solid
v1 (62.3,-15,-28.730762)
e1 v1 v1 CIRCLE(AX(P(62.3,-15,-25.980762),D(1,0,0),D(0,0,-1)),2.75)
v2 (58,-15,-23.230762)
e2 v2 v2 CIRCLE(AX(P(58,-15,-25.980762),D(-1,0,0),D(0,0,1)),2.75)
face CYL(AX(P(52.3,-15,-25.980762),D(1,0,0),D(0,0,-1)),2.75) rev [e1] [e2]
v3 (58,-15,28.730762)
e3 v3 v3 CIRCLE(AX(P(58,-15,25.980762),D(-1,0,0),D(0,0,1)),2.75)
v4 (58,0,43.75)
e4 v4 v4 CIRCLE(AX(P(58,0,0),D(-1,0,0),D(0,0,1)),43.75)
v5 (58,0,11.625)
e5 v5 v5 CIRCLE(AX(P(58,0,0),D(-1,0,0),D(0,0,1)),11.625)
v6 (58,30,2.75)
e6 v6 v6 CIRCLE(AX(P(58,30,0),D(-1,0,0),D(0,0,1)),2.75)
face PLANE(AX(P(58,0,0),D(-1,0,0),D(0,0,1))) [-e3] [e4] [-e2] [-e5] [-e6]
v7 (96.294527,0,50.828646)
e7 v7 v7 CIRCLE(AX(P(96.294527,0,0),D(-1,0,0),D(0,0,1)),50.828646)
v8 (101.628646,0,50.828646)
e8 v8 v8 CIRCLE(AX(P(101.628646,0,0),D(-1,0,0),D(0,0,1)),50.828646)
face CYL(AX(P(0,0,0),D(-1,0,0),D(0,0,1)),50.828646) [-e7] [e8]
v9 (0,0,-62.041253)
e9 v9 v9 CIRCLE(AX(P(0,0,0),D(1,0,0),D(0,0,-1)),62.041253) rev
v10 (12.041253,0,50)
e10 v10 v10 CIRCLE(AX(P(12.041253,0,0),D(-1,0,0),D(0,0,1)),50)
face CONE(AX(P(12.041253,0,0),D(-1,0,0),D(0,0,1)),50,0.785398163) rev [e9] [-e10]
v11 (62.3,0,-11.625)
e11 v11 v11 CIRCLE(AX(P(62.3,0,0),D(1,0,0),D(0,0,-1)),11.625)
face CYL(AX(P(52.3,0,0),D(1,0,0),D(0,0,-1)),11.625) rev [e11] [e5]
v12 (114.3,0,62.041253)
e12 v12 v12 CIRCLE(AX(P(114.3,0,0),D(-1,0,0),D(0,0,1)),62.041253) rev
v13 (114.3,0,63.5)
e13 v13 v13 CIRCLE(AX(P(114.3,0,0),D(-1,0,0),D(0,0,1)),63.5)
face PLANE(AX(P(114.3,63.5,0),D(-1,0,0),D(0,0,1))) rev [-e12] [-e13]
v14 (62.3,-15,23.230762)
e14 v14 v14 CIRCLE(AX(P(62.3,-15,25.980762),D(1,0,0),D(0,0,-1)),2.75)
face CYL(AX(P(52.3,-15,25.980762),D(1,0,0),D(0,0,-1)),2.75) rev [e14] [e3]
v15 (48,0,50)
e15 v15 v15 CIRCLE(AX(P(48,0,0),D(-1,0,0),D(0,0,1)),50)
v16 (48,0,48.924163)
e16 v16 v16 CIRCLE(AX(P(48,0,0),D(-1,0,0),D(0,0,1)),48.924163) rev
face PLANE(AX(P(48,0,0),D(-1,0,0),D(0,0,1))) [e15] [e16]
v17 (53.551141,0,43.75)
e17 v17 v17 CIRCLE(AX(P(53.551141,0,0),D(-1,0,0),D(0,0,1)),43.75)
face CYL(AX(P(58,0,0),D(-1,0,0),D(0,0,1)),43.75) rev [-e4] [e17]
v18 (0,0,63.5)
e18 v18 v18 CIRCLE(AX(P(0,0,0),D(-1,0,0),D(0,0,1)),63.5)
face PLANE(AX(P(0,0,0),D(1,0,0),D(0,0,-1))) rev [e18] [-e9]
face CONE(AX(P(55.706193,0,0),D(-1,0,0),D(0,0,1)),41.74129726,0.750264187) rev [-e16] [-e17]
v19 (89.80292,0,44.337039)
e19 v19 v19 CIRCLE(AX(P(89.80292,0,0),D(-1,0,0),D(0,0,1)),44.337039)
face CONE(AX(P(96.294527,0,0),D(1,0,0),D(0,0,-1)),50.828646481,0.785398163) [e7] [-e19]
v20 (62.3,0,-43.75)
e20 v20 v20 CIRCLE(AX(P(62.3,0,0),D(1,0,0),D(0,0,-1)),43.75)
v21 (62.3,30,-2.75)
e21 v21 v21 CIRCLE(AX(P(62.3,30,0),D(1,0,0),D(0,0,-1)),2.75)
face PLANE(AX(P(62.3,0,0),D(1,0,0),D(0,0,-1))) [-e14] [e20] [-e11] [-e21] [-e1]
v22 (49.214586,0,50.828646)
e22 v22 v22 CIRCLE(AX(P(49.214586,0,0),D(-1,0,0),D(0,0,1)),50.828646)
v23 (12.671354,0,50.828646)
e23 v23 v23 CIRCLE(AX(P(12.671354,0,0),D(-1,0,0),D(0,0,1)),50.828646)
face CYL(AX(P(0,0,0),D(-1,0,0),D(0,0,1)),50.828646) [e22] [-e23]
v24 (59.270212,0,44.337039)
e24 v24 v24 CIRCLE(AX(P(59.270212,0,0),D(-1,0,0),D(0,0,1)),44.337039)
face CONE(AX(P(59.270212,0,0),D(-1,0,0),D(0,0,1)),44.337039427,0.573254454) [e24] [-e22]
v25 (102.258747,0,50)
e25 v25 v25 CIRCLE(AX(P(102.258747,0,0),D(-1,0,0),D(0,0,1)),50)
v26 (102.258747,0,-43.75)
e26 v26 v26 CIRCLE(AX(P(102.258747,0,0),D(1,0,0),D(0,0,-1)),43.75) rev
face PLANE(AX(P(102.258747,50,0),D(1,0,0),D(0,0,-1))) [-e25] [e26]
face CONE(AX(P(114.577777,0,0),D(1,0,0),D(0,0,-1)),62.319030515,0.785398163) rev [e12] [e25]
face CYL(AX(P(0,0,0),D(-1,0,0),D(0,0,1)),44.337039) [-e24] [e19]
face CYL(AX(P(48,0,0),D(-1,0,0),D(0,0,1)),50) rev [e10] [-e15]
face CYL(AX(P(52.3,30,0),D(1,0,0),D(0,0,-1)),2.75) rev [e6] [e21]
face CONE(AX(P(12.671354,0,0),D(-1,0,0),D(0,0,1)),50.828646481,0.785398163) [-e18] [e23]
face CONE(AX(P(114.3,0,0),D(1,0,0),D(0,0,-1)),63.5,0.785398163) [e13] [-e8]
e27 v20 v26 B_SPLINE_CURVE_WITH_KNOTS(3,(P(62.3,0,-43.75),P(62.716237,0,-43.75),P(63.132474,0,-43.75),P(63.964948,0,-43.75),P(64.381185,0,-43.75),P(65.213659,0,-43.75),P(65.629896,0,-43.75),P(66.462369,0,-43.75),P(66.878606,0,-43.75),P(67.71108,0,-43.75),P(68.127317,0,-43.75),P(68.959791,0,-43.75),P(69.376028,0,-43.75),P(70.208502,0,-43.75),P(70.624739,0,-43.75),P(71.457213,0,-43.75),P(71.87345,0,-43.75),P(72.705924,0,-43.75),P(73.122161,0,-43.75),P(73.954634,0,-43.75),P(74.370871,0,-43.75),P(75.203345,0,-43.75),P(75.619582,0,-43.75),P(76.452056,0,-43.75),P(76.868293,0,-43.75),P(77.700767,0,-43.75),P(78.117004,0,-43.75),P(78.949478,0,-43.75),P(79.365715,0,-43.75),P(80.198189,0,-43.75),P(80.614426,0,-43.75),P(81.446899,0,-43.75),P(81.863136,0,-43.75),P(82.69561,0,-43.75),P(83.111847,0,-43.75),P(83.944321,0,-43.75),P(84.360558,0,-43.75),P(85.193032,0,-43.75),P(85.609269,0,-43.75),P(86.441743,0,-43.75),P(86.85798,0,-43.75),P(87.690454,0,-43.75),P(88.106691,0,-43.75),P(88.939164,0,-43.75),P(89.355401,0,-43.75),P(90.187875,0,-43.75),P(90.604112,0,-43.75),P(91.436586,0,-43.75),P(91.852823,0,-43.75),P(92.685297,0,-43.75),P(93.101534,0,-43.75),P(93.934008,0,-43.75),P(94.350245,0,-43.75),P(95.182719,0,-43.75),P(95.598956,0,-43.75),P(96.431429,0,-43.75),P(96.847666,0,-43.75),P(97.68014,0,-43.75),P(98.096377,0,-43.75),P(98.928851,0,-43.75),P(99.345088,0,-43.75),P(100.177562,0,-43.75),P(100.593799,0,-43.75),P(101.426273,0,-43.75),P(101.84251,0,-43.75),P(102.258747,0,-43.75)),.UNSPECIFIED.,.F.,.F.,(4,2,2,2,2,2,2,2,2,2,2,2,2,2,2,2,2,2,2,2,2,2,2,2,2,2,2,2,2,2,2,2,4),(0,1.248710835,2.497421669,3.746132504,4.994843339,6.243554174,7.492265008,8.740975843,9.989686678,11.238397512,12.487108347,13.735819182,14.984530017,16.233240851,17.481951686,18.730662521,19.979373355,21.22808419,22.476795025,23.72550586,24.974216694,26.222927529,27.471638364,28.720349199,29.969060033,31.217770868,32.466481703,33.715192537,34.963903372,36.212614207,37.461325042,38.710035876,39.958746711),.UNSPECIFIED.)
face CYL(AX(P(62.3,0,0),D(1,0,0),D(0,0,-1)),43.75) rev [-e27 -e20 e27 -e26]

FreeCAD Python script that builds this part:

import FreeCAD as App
import Part
import Sketcher
from FreeCAD import Vector

doc = App.newDocument("Part")
body = doc.addObject("PartDesign::Body", "Body")

# Sketch on XY plane
sketch1 = body.newObject("Sketcher::SketchObject", "Sketch")
sketch1.AttachmentSupport = (doc.getObject("XY_Plane"), [""])
sketch1.MapMode = "FlatFace"
sketch1.addGeometry(Part.LineSegment(Vector(0, 64, 0), Vector(0, 0, 0)), False)
sketch1.addGeometry(Part.LineSegment(Vector(0, 0, 0), Vector(114, 0, 0)), False)
sketch1.addGeometry(Part.LineSegment(Vector(114, 0, 0), Vector(114, 64, 0)), False)
sketch1.addGeometry(Part.LineSegment(Vector(114, 64, 0), Vector(102, 51, 0)), False)
sketch1.addGeometry(Part.LineSegment(Vector(102, 51, 0), Vector(96, 51, 0)), False)
sketch1.addGeometry(Part.LineSegment(Vector(96, 51, 0), Vector(90, 44, 0)), False)
sketch1.addGeometry(Part.LineSegment(Vector(90, 44, 0), Vector(59, 44, 0)), False)
sketch1.addGeometry(Part.LineSegment(Vector(59, 44, 0), Vector(49, 51, 0)), False)
sketch1.addGeometry(Part.LineSegment(Vector(49, 51, 0), Vector(13, 51, 0)), False)
sketch1.addGeometry(Part.LineSegment(Vector(13, 51, 0), Vector(0, 64, 0)), False)
sketch1.addConstraint(Sketcher.Constraint("Coincident", 0, 2, 1, 1))
sketch1.addConstraint(Sketcher.Constraint("Coincident", 1, 2, 2, 1))
sketch1.addConstraint(Sketcher.Constraint("Coincident", 2, 2, 3, 1))
sketch1.addConstraint(Sketcher.Constraint("Coincident", 3, 2, 4, 1))
sketch1.addConstraint(Sketcher.Constraint("Coincident", 4, 2, 5, 1))
sketch1.addConstraint(Sketcher.Constraint("Coincident", 5, 2, 6, 1))
sketch1.addConstraint(Sketcher.Constraint("Coincident", 6, 2, 7, 1))
sketch1.addConstraint(Sketcher.Constraint("Coincident", 7, 2, 8, 1))
sketch1.addConstraint(Sketcher.Constraint("Coincident", 8, 2, 9, 1))
sketch1.addConstraint(Sketcher.Constraint("Coincident", 9, 2, 0, 1))
sketch1.addConstraint(Sketcher.Constraint("Vertical", 0))
sketch1.addConstraint(Sketcher.Constraint("Horizontal", 1))
sketch1.addConstraint(Sketcher.Constraint("Vertical", 2))
sketch1.addConstraint(Sketcher.Constraint("Horizontal", 4))
sketch1.addConstraint(Sketcher.Constraint("Horizontal", 6))
sketch1.addConstraint(Sketcher.Constraint("Horizontal", 8))
sketch1.addConstraint(Sketcher.Constraint("Coincident", 0, 2, -1, 1))
sketch1.addConstraint(Sketcher.Constraint("Parallel", 3, 5))
sketch1.addConstraint(Sketcher.Constraint("Perpendicular", 5, 9))
sketch1.addConstraint(Sketcher.Constraint("Horizontal", 4, 2, 7, 2))
sketch1.addConstraint(Sketcher.Constraint("Horizontal", 2, 2, 9, 2))
sketch1.addConstraint(Sketcher.Constraint("Equal", 3, 9))
sketch1.addConstraint(Sketcher.Constraint("DistanceX", 1, 1, 1, 2, 114.3))
sketch1.addConstraint(Sketcher.Constraint("DistanceY", 0, 2, 0, 1, 63.5))
sketch1.addConstraint(Sketcher.Constraint("Distance", 3, 17.92))
sketch1.addConstraint(Sketcher.Constraint("DistanceX", 4, 2, 4, 1, 5.334119))
sketch1.addConstraint(Sketcher.Constraint("DistanceX", 6, 2, 6, 1, 30.532709))
sketch1.addConstraint(Sketcher.Constraint("Distance", 5, 9.180519))
sketch1.addConstraint(Sketcher.Constraint("DistanceX", 8, 2, 8, 1, 36.543232))
revolution = body.newObject("PartDesign::Revolution", "Revolution")
revolution.Profile = sketch1
revolution.ReferenceAxis = (sketch1, ["H_Axis"])
revolution.Angle = 360

# Sketch on YZ plane
sketch2 = body.newObject("Sketcher::SketchObject", "Sketch001")
sketch2.AttachmentSupport = (doc.getObject("YZ_Plane"), [""])
sketch2.MapMode = "FlatFace"
sketch2.addGeometry(Part.Circle(Vector(0, 0, 0), Vector(0, 0, 1), 50), False)
sketch2.addConstraint(Sketcher.Constraint("Coincident", 0, 3, -1, 1))
sketch2.addConstraint(Sketcher.Constraint("Diameter", 0, 100.0))
pocket1 = body.newObject("PartDesign::Pocket", "Pocket")
pocket1.Profile = sketch2
pocket1.Length = 48
pocket1.Reversed = True

# Sketch on YZ plane
sketch3 = body.newObject("Sketcher::SketchObject", "Sketch002")
sketch3.AttachmentSupport = (doc.getObject("YZ_Plane"), [""])
sketch3.MapMode = "FlatFace"
sketch3.AttachmentOffset = App.Placement(Vector(0, 0, 114.3), App.Rotation())
sketch3.addGeometry(Part.Circle(Vector(0, 0, 0), Vector(0, 0, 1), 44), False)
sketch3.addConstraint(Sketcher.Constraint("Coincident", 0, 3, -1, 1))
sketch3.addConstraint(Sketcher.Constraint("Diameter", 0, 87.5))
pocket2 = body.newObject("PartDesign::Pocket", "Pocket001")
pocket2.Profile = sketch3
pocket2.Length = 52

# Sketch on XY plane
sketch4 = body.newObject("Sketcher::SketchObject", "Sketch003")
sketch4.AttachmentSupport = (doc.getObject("XY_Plane"), [""])
sketch4.MapMode = "FlatFace"
sketch4.addGeometry(Part.LineSegment(Vector(12, 50, 0), Vector(0, 62, 0)), False)
sketch4.addGeometry(Part.LineSegment(Vector(0, 62, 0), Vector(0, 50, 0)), False)
sketch4.addGeometry(Part.LineSegment(Vector(0, 50, 0), Vector(12, 50, 0)), False)
sketch4.addGeometry(Part.LineSegment(Vector(115, 42, 0), Vector(115, 62, 0)), False)
sketch4.addGeometry(Part.LineSegment(Vector(115, 62, 0), Vector(102, 50, 0)), False)
sketch4.addGeometry(Part.LineSegment(Vector(102, 50, 0), Vector(102, 42, 0)), False)
sketch4.addGeometry(Part.LineSegment(Vector(102, 42, 0), Vector(115, 42, 0)), False)
sketch4.addConstraint(Sketcher.Constraint("Coincident", 0, 2, 1, 1))
sketch4.addConstraint(Sketcher.Constraint("Coincident", 1, 2, 2, 1))
sketch4.addConstraint(Sketcher.Constraint("Coincident", 2, 2, 0, 1))
sketch4.addConstraint(Sketcher.Constraint("Coincident", 3, 2, 4, 1))
sketch4.addConstraint(Sketcher.Constraint("Coincident", 4, 2, 5, 1))
sketch4.addConstraint(Sketcher.Constraint("Coincident", 5, 2, 6, 1))
sketch4.addConstraint(Sketcher.Constraint("Coincident", 6, 2, 3, 1))
sketch4.addConstraint(Sketcher.Constraint("Vertical", 1))
sketch4.addConstraint(Sketcher.Constraint("Horizontal", 2))
sketch4.addConstraint(Sketcher.Constraint("Vertical", 3))
sketch4.addConstraint(Sketcher.Constraint("Vertical", 5))
sketch4.addConstraint(Sketcher.Constraint("Horizontal", 6))
sketch4.addConstraint(Sketcher.Constraint("Perpendicular", 0, 4))
sketch4.addConstraint(Sketcher.Constraint("Horizontal", 0, 2, 3, 2))
sketch4.addConstraint(Sketcher.Constraint("Horizontal", 2, 2, 4, 2))
sketch4.addConstraint(Sketcher.Constraint("Equal", 2, 6))
sketch4.addConstraint(Sketcher.Constraint("DistanceY", -1, 1, 1, 2, 50.0))
sketch4.addConstraint(Sketcher.Constraint("DistanceX", 2, 1, 2, 2, 12.319031))
sketch4.addConstraint(Sketcher.Constraint("DistanceY", 3, 1, 3, 2, 20.144864))
sketch4.addConstraint(Sketcher.Constraint("DistanceX", 0, 2, -1, 1, 0.277777))
sketch4.addConstraint(Sketcher.Constraint("DistanceX", -1, 1, 3, 2, 114.577777))
groove = body.newObject("PartDesign::Groove", "Groove")
groove.Profile = sketch4
groove.ReferenceAxis = (sketch4, ["H_Axis"])
groove.Angle = 360

# Sketch on XY plane
sketch5 = body.newObject("Sketcher::SketchObject", "Sketch004")
sketch5.AttachmentSupport = (doc.getObject("XY_Plane"), [""])
sketch5.MapMode = "FlatFace"
sketch5.addGeometry(Part.LineSegment(Vector(47, 42, 0), Vector(56, 42, 0)), False)
sketch5.addGeometry(Part.LineSegment(Vector(56, 42, 0), Vector(47, 50, 0)), False)
sketch5.addGeometry(Part.LineSegment(Vector(47, 50, 0), Vector(47, 42, 0)), False)
sketch5.addConstraint(Sketcher.Constraint("Coincident", 0, 2, 1, 1))
sketch5.addConstraint(Sketcher.Constraint("Coincident", 1, 2, 2, 1))
sketch5.addConstraint(Sketcher.Constraint("Coincident", 2, 2, 0, 1))
sketch5.addConstraint(Sketcher.Constraint("Horizontal", 0))
sketch5.addConstraint(Sketcher.Constraint("Vertical", 2))
sketch5.addConstraint(Sketcher.Constraint("DistanceX", 0, 1, 0, 2, 8.581249))
sketch5.addConstraint(Sketcher.Constraint("Distance", 1, 11.73089))
sketch5.addConstraint(Sketcher.Constraint("DistanceX", -1, 1, 0, 2, 55.706193))
sketch5.addConstraint(Sketcher.Constraint("DistanceY", -1, 1, 0, 2, 41.741297))
groove2 = body.newObject("PartDesign::Groove", "Groove001")
groove2.Profile = sketch5
groove2.ReferenceAxis = (sketch5, ["H_Axis"])
groove2.Angle = 360

# Sketch on YZ plane
sketch6 = body.newObject("Sketcher::SketchObject", "Sketch005")
sketch6.AttachmentSupport = (doc.getObject("YZ_Plane"), [""])
sketch6.MapMode = "FlatFace"
sketch6.AttachmentOffset = App.Placement(Vector(0, 0, 58), App.Rotation())
sketch6.addGeometry(Part.Circle(Vector(0, 0, 0), Vector(0, 0, 1), 44), False)
sketch6.addConstraint(Sketcher.Constraint("Coincident", 0, 3, -1, 1))
sketch6.addConstraint(Sketcher.Constraint("Diameter", 0, 87.5))
pocket3 = body.newObject("PartDesign::Pocket", "Pocket002")
pocket3.Profile = sketch6
pocket3.Length = 10

# Sketch on YZ plane
sketch7 = body.newObject("Sketcher::SketchObject", "Sketch006")
sketch7.AttachmentSupport = (doc.getObject("YZ_Plane"), [""])
sketch7.MapMode = "FlatFace"
sketch7.AttachmentOffset = App.Placement(Vector(0, 0, 62.3), App.Rotation())
sketch7.addGeometry(Part.Circle(Vector(0, 0, 0), Vector(0, 0, 1), 11.6), False)
sketch7.addGeometry(Part.Circle(Vector(30, 0, 0), Vector(0, 0, 1), 2.8), False)
sketch7.addGeometry(Part.Circle(Vector(-15, -26, 0), Vector(0, 0, 1), 2.8), False)
sketch7.addGeometry(Part.Circle(Vector(-15, 26, 0), Vector(0, 0, 1), 2.8), False)
sketch7.addConstraint(Sketcher.Constraint("Coincident", 0, 3, -1, 1))
sketch7.addConstraint(Sketcher.Constraint("Equal", 1, 2))
sketch7.addConstraint(Sketcher.Constraint("Equal", 2, 3))
sketch7.addConstraint(Sketcher.Constraint("Symmetric", 2, 3, 3, 3, -1))
sketch7.addConstraint(Sketcher.Constraint("PointOnObject", 1, 3, -1))
sketch7.addConstraint(Sketcher.Constraint("Diameter", 1, 5.5))
sketch7.addConstraint(Sketcher.Constraint("Diameter", 0, 23.25))
sketch7.addConstraint(Sketcher.Constraint("DistanceX", -1, 1, 1, 3, 30.0))
sketch7.addConstraint(Sketcher.Constraint("DistanceX", 2, 3, -1, 1, 15.0))
sketch7.addConstraint(Sketcher.Constraint("DistanceY", 2, 3, -1, 1, 25.980762))
pocket4 = body.newObject("PartDesign::Pocket", "Pocket003")
pocket4.Profile = sketch7
pocket4.Length = 10

doc.recompute()
